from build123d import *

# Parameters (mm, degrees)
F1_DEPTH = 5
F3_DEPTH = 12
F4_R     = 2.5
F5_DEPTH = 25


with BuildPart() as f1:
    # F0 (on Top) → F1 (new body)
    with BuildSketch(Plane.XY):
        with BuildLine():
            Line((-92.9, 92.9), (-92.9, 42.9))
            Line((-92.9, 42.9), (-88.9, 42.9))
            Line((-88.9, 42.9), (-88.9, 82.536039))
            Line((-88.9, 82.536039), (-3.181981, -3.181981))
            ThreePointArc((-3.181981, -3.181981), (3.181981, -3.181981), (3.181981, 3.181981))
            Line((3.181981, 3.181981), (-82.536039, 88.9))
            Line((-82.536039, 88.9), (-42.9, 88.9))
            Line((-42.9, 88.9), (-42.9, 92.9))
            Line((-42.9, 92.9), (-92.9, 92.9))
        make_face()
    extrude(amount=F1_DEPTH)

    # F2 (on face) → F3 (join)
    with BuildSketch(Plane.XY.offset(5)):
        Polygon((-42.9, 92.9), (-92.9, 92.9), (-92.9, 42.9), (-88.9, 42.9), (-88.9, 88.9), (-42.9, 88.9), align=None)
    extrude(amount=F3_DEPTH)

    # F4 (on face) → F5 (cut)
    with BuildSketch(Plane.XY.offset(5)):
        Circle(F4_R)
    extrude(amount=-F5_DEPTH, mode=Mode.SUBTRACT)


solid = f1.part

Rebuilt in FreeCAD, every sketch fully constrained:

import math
import FreeCAD as App
import Part
import Sketcher
from FreeCAD import Vector
Q = App.Units.Quantity

doc = App.newDocument("Part")
body = doc.addObject("PartDesign::Body", "Body")

# Sketch on XY plane
sketch1 = body.newObject("Sketcher::SketchObject", "Sketch")
sketch1.AttachmentSupport = (doc.getObject("XY_Plane"), [""])
sketch1.MapMode = "FlatFace"
sketch1.addGeometry([
    Part.LineSegment(Vector(-92.9, 92.9, 0), Vector(-92.9, 42.9, 0)),  # 0
    Part.LineSegment(Vector(-92.9, 42.9, 0), Vector(-88.9, 42.9, 0)),  # 1
    Part.LineSegment(Vector(-88.9, 42.9, 0), Vector(-88.9, 82.5, 0)),  # 2
    Part.LineSegment(Vector(-88.9, 82.5, 0), Vector(-3.2, -3.2, 0)),  # 3
    Part.ArcOfCircle(Part.Circle(Vector(0, 0, 0), Vector(0, 0, 1), 4.5), math.radians(-135), math.radians(45)),  # 4
    Part.LineSegment(Vector(3.2, 3.2, 0), Vector(-82.5, 88.9, 0)),  # 5
    Part.LineSegment(Vector(-82.5, 88.9, 0), Vector(-42.9, 88.9, 0)),  # 6
    Part.LineSegment(Vector(-42.9, 88.9, 0), Vector(-42.9, 92.9, 0)),  # 7
    Part.LineSegment(Vector(-42.9, 92.9, 0), Vector(-92.9, 92.9, 0)),  # 8
], False)
sketch1.addConstraint([
    Sketcher.Constraint("Coincident", 0, 2, 1, 1),
    Sketcher.Constraint("Coincident", 1, 2, 2, 1),
    Sketcher.Constraint("Coincident", 2, 2, 3, 1),
    Sketcher.Constraint("Tangent", 3, 2, 4, 1),
    Sketcher.Constraint("Tangent", 4, 2, 5, 1),
    Sketcher.Constraint("Coincident", 5, 2, 6, 1),
    Sketcher.Constraint("Coincident", 6, 2, 7, 1),
    Sketcher.Constraint("Coincident", 7, 2, 8, 1),
    Sketcher.Constraint("Coincident", 8, 2, 0, 1),
    Sketcher.Constraint("Vertical", 0),
    Sketcher.Constraint("Horizontal", 1),
    Sketcher.Constraint("Vertical", 2),
    Sketcher.Constraint("Horizontal", 6),
    Sketcher.Constraint("Vertical", 7),
    Sketcher.Constraint("Horizontal", 8),
    Sketcher.Constraint("Coincident", 4, 3, -1, 1),
    Sketcher.Constraint("Parallel", 3, 5),
    Sketcher.Constraint("Equal", 8, 0),
    Sketcher.Constraint("Equal", 6, 2),
    Sketcher.Constraint("Equal", 1, 7),
    Sketcher.Constraint("Equal", 3, 5),
    Sketcher.Constraint("Radius", 4, Q("4.500001 mm")),
    Sketcher.Constraint("DistanceX", 1, 1, 1, 2, Q("4 mm")),
    Sketcher.Constraint("DistanceX", 8, 2, 8, 1, Q("50 mm")),
    Sketcher.Constraint("DistanceX", 0, 2, -1, 1, Q("92.9 mm")),
])
pad1 = body.newObject("PartDesign::Pad", "Pad")
pad1.Profile = sketch1
pad1.Length = 5

# Sketch on XY plane
sketch2 = body.newObject("Sketcher::SketchObject", "Sketch001")
sketch2.AttachmentSupport = (doc.getObject("XY_Plane"), [""])
sketch2.MapMode = "FlatFace"
sketch2.AttachmentOffset = App.Placement(Vector(0, 0, 5), App.Rotation())
sketch2.addGeometry([
    Part.LineSegment(Vector(-42.9, 92.9, 0), Vector(-92.9, 92.9, 0)),  # 0
    Part.LineSegment(Vector(-92.9, 92.9, 0), Vector(-92.9, 42.9, 0)),  # 1
    Part.LineSegment(Vector(-92.9, 42.9, 0), Vector(-88.9, 42.9, 0)),  # 2
    Part.LineSegment(Vector(-88.9, 42.9, 0), Vector(-88.9, 88.9, 0)),  # 3
    Part.LineSegment(Vector(-88.9, 88.9, 0), Vector(-42.9, 88.9, 0)),  # 4
    Part.LineSegment(Vector(-42.9, 88.9, 0), Vector(-42.9, 92.9, 0)),  # 5
], False)
sketch2.addConstraint([
    Sketcher.Constraint("Coincident", 0, 2, 1, 1),
    Sketcher.Constraint("Coincident", 1, 2, 2, 1),
    Sketcher.Constraint("Coincident", 2, 2, 3, 1),
    Sketcher.Constraint("Coincident", 3, 2, 4, 1),
    Sketcher.Constraint("Coincident", 4, 2, 5, 1),
    Sketcher.Constraint("Coincident", 5, 2, 0, 1),
    Sketcher.Constraint("Horizontal", 0),
    Sketcher.Constraint("Vertical", 1),
    Sketcher.Constraint("Horizontal", 2),
    Sketcher.Constraint("Vertical", 3),
    Sketcher.Constraint("Horizontal", 4),
    Sketcher.Constraint("Vertical", 5),
    Sketcher.Constraint("Equal", 0, 1),
    Sketcher.Constraint("Equal", 4, 3),
    Sketcher.Constraint("DistanceX", 0, 2, 0, 1, Q("50 mm")),
    Sketcher.Constraint("DistanceX", 2, 1, 2, 2, Q("4 mm")),
    Sketcher.Constraint("DistanceX", 0, 2, -1, 1, Q("92.9 mm")),
    Sketcher.Constraint("DistanceY", -1, 1, 0, 2, Q("92.9 mm")),
])
pad2 = body.newObject("PartDesign::Pad", "Pad001")
pad2.Profile = sketch2
pad2.Length = 12

# Sketch on XY plane
sketch3 = body.newObject("Sketcher::SketchObject", "Sketch002")
sketch3.AttachmentSupport = (doc.getObject("XY_Plane"), [""])
sketch3.MapMode = "FlatFace"
sketch3.AttachmentOffset = App.Placement(Vector(0, 0, 5), App.Rotation())
sketch3.addGeometry(Part.Circle(Vector(0, 0, 0), Vector(0, 0, 1), 2.5), False)
sketch3.addConstraint([
    Sketcher.Constraint("Coincident", 0, 3, -1, 1),
    Sketcher.Constraint("Diameter", 0, Q("5 mm")),
])
pocket1 = body.newObject("PartDesign::Pocket", "Pocket")
pocket1.Profile = sketch3
pocket1.Length = 25

doc.recompute()
